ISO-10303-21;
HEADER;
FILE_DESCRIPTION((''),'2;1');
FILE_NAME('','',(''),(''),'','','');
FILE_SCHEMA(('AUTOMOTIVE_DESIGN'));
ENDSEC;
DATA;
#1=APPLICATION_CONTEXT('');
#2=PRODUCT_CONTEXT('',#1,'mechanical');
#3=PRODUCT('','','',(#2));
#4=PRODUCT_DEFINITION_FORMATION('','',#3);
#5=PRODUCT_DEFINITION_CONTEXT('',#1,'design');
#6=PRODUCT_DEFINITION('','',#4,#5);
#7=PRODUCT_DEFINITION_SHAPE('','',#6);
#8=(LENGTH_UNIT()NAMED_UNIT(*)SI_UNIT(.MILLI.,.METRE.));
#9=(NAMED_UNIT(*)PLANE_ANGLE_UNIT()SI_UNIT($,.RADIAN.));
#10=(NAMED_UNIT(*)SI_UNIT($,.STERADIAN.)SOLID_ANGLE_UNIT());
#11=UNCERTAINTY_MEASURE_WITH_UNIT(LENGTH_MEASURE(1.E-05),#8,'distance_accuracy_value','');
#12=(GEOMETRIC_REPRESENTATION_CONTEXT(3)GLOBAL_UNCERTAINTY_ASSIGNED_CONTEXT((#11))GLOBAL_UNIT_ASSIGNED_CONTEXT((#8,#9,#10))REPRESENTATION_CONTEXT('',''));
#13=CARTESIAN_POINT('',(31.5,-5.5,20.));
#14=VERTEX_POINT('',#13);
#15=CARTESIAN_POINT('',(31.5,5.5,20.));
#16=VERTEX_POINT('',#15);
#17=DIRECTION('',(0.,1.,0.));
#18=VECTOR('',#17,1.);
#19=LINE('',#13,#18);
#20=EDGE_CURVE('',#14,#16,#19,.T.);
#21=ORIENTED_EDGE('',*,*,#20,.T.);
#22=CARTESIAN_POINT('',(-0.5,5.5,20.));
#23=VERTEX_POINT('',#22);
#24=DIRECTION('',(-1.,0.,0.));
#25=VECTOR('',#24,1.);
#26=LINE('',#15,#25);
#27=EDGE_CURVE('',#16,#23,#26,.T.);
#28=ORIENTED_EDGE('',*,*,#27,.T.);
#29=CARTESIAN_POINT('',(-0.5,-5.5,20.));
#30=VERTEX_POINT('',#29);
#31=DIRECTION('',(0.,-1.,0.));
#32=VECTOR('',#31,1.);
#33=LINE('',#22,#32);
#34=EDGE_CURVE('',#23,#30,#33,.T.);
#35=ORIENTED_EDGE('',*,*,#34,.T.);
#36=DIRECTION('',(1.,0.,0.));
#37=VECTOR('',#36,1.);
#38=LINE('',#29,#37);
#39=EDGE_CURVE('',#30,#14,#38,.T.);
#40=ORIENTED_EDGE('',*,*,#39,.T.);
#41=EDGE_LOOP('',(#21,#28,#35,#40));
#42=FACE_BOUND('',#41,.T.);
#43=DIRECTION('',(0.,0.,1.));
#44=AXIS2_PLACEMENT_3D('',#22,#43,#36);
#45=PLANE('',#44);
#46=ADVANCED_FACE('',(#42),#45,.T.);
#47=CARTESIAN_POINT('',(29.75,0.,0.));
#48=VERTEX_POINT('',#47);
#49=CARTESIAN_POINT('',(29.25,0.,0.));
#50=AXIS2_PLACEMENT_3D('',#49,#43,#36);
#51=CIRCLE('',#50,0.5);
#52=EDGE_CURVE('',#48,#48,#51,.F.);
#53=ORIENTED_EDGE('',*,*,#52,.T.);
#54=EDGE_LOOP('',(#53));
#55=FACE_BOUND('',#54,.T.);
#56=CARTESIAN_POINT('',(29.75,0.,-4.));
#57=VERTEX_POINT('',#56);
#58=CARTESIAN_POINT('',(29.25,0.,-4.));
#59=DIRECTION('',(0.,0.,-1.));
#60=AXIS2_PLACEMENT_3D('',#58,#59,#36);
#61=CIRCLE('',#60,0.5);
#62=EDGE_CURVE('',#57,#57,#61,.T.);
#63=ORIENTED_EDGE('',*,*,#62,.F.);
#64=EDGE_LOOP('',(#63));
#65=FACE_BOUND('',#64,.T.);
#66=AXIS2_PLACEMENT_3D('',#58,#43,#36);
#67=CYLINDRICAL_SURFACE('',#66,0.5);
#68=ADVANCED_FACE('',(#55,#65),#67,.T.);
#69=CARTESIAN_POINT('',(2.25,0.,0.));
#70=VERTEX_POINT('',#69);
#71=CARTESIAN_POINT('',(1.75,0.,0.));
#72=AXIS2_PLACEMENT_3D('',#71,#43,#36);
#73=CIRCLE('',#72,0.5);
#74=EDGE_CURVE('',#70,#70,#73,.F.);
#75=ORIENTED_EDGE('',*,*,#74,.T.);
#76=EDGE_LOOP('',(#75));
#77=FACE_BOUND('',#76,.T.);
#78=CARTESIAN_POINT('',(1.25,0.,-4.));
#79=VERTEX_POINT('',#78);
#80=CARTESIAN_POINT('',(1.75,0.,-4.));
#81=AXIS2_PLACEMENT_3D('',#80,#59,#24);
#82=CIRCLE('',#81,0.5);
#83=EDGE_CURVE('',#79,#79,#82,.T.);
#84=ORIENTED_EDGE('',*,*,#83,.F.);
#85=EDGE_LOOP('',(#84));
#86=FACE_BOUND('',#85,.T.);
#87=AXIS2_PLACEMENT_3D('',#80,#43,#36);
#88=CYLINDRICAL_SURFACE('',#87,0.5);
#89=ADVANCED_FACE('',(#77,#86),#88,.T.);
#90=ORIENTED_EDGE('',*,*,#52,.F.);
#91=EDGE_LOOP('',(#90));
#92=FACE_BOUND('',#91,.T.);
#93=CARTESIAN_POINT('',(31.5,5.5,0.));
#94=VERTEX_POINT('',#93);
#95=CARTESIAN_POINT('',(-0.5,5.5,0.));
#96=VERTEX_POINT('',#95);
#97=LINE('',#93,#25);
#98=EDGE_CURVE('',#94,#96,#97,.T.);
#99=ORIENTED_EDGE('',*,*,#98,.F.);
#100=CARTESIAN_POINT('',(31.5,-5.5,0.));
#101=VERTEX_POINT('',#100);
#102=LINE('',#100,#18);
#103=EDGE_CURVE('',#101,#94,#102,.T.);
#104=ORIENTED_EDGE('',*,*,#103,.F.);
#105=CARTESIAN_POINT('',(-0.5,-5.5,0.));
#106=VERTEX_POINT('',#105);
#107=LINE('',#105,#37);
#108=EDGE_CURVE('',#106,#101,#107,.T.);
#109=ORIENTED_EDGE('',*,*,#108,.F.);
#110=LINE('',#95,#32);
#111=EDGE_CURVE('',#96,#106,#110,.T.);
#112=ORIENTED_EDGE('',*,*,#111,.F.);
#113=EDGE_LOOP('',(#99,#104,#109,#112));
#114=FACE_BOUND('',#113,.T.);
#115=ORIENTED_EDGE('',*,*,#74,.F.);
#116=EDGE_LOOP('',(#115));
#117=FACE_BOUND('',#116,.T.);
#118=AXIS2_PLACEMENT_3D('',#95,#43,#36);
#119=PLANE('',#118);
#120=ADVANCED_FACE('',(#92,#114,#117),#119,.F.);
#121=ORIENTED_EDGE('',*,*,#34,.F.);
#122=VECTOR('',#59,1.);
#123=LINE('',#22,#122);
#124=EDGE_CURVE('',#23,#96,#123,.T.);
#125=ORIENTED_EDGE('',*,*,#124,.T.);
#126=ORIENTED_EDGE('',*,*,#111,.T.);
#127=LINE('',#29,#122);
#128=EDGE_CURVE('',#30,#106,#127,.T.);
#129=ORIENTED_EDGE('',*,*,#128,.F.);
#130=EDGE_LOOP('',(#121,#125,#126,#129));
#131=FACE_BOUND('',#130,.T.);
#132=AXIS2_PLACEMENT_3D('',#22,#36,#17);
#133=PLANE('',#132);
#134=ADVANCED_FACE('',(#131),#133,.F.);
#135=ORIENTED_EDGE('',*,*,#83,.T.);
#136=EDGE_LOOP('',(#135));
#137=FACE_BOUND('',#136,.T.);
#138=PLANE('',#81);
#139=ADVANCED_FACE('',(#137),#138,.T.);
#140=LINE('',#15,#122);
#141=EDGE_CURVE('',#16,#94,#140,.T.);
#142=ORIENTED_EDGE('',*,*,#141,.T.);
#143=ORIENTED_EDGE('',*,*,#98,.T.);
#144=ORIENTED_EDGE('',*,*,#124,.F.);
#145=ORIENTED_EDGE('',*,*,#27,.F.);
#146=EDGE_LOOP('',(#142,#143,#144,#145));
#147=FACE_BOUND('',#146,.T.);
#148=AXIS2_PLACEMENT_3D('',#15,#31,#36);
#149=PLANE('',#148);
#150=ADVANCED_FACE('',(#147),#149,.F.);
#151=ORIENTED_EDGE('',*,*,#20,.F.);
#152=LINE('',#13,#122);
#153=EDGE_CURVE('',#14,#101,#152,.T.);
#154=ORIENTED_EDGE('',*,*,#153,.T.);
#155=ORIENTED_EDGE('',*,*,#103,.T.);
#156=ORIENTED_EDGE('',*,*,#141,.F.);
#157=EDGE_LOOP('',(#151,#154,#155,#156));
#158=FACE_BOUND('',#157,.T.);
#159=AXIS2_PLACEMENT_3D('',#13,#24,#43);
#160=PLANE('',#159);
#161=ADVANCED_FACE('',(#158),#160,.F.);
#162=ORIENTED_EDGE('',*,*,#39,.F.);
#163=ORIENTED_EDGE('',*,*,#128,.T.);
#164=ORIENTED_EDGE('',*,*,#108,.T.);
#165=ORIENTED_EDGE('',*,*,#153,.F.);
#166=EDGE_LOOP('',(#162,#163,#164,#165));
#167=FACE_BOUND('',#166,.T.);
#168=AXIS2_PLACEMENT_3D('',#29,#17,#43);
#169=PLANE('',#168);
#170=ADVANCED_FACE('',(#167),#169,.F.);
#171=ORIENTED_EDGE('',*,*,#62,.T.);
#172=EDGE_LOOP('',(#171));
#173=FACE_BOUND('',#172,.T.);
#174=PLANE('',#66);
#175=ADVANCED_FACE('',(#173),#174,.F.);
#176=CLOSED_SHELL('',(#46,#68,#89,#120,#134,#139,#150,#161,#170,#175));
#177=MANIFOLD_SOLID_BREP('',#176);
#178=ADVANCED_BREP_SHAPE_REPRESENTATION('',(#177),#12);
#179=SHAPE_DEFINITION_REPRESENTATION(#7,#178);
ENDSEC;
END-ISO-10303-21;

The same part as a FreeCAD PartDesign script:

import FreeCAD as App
import Part
import Sketcher

V = App.Vector
Q = App.Units.Quantity


def add_polygon(sketch, points):
    """Adds a closed chain of lines whose ends are joined by coincident constraints."""
    first, n = sketch.GeometryCount, len(points)
    for a, b in zip(points, points[1:] + points[:1]):
        sketch.addGeometry(Part.LineSegment(App.Vector(*a, 0), App.Vector(*b, 0)), False)
    for i in range(n):
        sketch.addConstraint(Sketcher.Constraint("Coincident", first + i, 2, first + (i + 1) % n, 1))

doc = App.newDocument("Part")
body = doc.addObject("PartDesign::Body", "Body")

sketch1 = body.newObject("Sketcher::SketchObject", "Sketch")
sketch1.AttachmentSupport = (doc.getObject("XY_Plane"), [""])
sketch1.MapMode = "FlatFace"
add_polygon(sketch1, [(0, 6), (0, -6), (32, -6), (32, 6)])
sketch1.addConstraint(Sketcher.Constraint("Vertical", 0))
sketch1.addConstraint(Sketcher.Constraint("Horizontal", 1))
sketch1.addConstraint(Sketcher.Constraint("Vertical", 2))
sketch1.addConstraint(Sketcher.Constraint("Horizontal", 3))
sketch1.addConstraint(Sketcher.Constraint("DistanceX", 1, 1, 1, 2, Q("32 mm")))
sketch1.addConstraint(Sketcher.Constraint("DistanceY", 0, 2, 0, 1, Q("11 mm")))
sketch1.addConstraint(Sketcher.Constraint("DistanceX", 0, 2, -1, 1, Q("0.5 mm")))
sketch1.addConstraint(Sketcher.Constraint("DistanceY", 0, 2, -1, 1, Q("5.5 mm")))
pad1 = body.newObject("PartDesign::Pad", "Pad")
pad1.Profile = sketch1
pad1.Length = 20

sketch2 = body.newObject("Sketcher::SketchObject", "Sketch001")
sketch2.AttachmentSupport = (doc.getObject("XY_Plane"), [""])
sketch2.MapMode = "FlatFace"
sketch2.addGeometry(Part.Circle(V(1.8, 0, 0), V(0, 0, 1), 0.5), False)
sketch2.addGeometry(Part.Circle(V(29.2, 0, 0), V(0, 0, 1), 0.5), False)
sketch2.addConstraint(Sketcher.Constraint("Equal", 0, 1))
sketch2.addConstraint(Sketcher.Constraint("PointOnObject", 0, 3, -1))
sketch2.addConstraint(Sketcher.Constraint("PointOnObject", 1, 3, -1))
sketch2.addConstraint(Sketcher.Constraint("Diameter", 0, Q("1 mm")))
sketch2.addConstraint(Sketcher.Constraint("DistanceX", 0, 3, 1, 3, Q("27.5 mm")))
sketch2.addConstraint(Sketcher.Constraint("DistanceX", -1, 1, 0, 3, Q("1.75 mm")))
pad2 = body.newObject("PartDesign::Pad", "Pad001")
pad2.Profile = sketch2
pad2.Length = 4
pad2.Reversed = True

doc.recompute()
